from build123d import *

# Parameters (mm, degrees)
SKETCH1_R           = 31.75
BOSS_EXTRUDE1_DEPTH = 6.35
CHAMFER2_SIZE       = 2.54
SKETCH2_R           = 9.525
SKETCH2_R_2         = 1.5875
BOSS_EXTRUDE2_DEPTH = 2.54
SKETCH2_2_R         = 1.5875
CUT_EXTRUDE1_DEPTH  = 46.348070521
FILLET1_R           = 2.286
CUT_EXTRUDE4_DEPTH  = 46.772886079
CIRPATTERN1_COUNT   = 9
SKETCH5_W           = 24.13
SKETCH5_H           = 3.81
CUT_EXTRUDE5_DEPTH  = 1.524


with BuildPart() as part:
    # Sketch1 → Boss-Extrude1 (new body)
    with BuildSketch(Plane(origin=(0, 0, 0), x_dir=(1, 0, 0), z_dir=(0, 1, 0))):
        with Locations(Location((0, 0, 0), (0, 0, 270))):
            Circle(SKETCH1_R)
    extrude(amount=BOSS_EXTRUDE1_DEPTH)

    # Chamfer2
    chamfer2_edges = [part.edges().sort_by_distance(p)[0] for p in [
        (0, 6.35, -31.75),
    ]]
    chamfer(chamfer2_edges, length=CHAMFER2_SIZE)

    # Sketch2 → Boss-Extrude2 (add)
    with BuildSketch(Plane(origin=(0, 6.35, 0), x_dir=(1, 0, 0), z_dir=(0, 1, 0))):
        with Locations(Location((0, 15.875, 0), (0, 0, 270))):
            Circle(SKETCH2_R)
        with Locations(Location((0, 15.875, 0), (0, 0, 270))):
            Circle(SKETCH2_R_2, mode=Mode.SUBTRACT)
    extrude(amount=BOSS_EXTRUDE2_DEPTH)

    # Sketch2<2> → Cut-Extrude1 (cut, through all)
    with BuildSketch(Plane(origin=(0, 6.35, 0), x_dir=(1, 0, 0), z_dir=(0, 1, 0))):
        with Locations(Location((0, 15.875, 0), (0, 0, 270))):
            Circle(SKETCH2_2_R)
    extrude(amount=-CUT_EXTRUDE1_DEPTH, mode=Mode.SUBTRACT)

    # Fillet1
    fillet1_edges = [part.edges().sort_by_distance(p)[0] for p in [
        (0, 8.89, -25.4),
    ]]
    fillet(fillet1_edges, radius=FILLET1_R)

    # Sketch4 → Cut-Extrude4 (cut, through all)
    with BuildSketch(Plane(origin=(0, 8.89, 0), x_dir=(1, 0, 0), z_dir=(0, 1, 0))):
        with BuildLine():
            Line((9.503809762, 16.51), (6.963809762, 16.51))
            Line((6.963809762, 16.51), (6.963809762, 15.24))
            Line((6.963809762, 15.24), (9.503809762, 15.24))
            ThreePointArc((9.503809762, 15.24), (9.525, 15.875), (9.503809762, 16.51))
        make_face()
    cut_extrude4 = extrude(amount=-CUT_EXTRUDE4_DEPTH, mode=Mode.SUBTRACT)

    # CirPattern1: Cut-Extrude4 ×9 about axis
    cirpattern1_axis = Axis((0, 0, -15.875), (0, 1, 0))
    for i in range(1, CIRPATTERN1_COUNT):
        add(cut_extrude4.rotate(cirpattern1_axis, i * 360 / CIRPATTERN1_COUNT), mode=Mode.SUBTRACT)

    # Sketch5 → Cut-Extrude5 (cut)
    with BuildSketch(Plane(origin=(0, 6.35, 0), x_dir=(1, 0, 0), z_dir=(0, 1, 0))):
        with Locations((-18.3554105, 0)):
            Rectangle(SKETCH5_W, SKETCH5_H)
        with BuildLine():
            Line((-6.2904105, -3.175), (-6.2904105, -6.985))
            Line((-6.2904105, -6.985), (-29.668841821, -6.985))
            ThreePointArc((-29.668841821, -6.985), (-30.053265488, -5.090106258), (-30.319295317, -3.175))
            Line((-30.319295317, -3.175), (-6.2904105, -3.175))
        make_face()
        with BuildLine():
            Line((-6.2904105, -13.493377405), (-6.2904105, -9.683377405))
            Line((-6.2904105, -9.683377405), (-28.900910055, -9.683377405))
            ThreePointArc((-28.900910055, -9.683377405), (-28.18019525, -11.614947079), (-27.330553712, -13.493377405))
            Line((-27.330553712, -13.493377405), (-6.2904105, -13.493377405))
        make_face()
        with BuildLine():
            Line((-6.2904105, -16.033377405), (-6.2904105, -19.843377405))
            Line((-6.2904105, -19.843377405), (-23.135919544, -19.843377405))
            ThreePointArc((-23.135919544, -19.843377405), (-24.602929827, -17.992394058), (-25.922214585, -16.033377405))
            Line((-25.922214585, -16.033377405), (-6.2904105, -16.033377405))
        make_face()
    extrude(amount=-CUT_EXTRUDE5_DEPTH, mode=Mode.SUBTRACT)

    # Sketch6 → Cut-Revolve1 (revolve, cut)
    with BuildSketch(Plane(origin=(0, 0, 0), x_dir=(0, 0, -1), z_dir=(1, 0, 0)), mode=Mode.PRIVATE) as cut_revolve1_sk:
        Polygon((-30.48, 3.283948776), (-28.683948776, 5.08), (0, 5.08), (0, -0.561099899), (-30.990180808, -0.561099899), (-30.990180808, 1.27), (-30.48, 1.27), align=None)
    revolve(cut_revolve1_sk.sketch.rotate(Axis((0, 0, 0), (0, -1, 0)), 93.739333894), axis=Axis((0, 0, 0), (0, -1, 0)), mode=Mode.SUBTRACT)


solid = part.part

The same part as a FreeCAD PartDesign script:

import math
import FreeCAD as App
import Part
import Sketcher
from FreeCAD import Vector
Q = App.Units.Quantity


def edges_at(feature, points):
    """Names of the edges that pass closest to the given points."""
    edges = feature.Shape.Edges
    near = lambda p: min(range(len(edges)), key=lambda i: edges[i].distToShape(Part.Vertex(*p))[0])
    return sorted({f"Edge{near(p) + 1}" for p in points})


def add_polygon(sketch, points):
    """Adds a closed chain of lines whose ends are joined by coincident constraints."""
    first, n = sketch.GeometryCount, len(points)
    for a, b in zip(points, points[1:] + points[:1]):
        sketch.addGeometry(Part.LineSegment(App.Vector(*a, 0), App.Vector(*b, 0)), False)
    for i in range(n):
        sketch.addConstraint(Sketcher.Constraint("Coincident", first + i, 2, first + (i + 1) % n, 1))

doc = App.newDocument("Part")
body = doc.addObject("PartDesign::Body", "Body")

sketch1 = body.newObject("Sketcher::SketchObject", "Sketch")
sketch1.AttachmentSupport = (doc.getObject("XZ_Plane"), [""])
sketch1.MapMode = "FlatFace"
sketch1.addGeometry(Part.Circle(Vector(0, 0, 0), Vector(0, 0, 1), 32), False)
sketch1.addConstraint(Sketcher.Constraint("Coincident", 0, 3, -1, 1))
sketch1.addConstraint(Sketcher.Constraint("Diameter", 0, Q("2.5 in")))
pad1 = body.newObject("PartDesign::Pad", "Pad")
pad1.Profile = sketch1
pad1.Length = Q("0.25 in")
pad1.Reversed = True
doc.recompute()

chamfer = body.newObject("PartDesign::Chamfer", "Chamfer")
chamfer.Base = (pad1, edges_at(pad1, [(0, 6.35, -31.75)]))
chamfer.Size = Q("0.1 in")

sketch2 = body.newObject("Sketcher::SketchObject", "Sketch001")
sketch2.AttachmentSupport = (doc.getObject("XZ_Plane"), [""])
sketch2.MapMode = "FlatFace"
sketch2.AttachmentOffset = App.Placement(Vector(0, 0, -0.25 * 25.4), App.Rotation())
sketch2.addGeometry(Part.Circle(Vector(0, -15.9, 0), Vector(0, 0, 1), 9.5), False)
sketch2.addGeometry(Part.Circle(Vector(0, -15.9, 0), Vector(0, 0, 1), 1.6), False)
sketch2.addConstraint(Sketcher.Constraint("Coincident", 1, 3, 0, 3))
sketch2.addConstraint(Sketcher.Constraint("PointOnObject", 0, 3, -2))
sketch2.addConstraint(Sketcher.Constraint("Diameter", 0, Q("0.75 in")))
sketch2.addConstraint(Sketcher.Constraint("Diameter", 1, Q("0.125 in")))
sketch2.addConstraint(Sketcher.Constraint("DistanceY", 0, 3, -1, 1, Q("0.625 in")))
pad2 = body.newObject("PartDesign::Pad", "Pad001")
pad2.Profile = sketch2
pad2.Length = Q("0.1 in")
pad2.Reversed = True

sketch3 = body.newObject("Sketcher::SketchObject", "Sketch002")
sketch3.AttachmentSupport = (doc.getObject("XZ_Plane"), [""])
sketch3.MapMode = "FlatFace"
sketch3.AttachmentOffset = App.Placement(Vector(0, 0, -0.25 * 25.4), App.Rotation())
sketch3.addGeometry(Part.Circle(Vector(0, -15.9, 0), Vector(0, 0, 1), 1.6), False)
sketch3.addConstraint(Sketcher.Constraint("PointOnObject", 0, 3, -2))
sketch3.addConstraint(Sketcher.Constraint("Diameter", 0, Q("0.125 in")))
sketch3.addConstraint(Sketcher.Constraint("DistanceY", 0, 3, -1, 1, Q("0.625 in")))
pocket1 = body.newObject("PartDesign::Pocket", "Pocket")
pocket1.Profile = sketch3
pocket1.Type = "ThroughAll"
pocket1.Reversed = True
doc.recompute()

fillet = body.newObject("PartDesign::Fillet", "Fillet")
fillet.Base = (pocket1, edges_at(pocket1, [(0, 8.89, -25.4)]))
fillet.Radius = Q("0.09 in")

sketch4 = body.newObject("Sketcher::SketchObject", "Sketch003")
sketch4.AttachmentSupport = (doc.getObject("XZ_Plane"), [""])
sketch4.MapMode = "FlatFace"
sketch4.AttachmentOffset = App.Placement(Vector(0, 0, -0.35 * 25.4), App.Rotation())
sketch4.addGeometry(Part.LineSegment(Vector(9.5, -16.5, 0), Vector(7, -16.5, 0)), False)
sketch4.addGeometry(Part.LineSegment(Vector(7, -16.5, 0), Vector(7, -15.2, 0)), False)
sketch4.addGeometry(Part.LineSegment(Vector(7, -15.2, 0), Vector(9.5, -15.2, 0)), False)
sketch4.addGeometry(Part.ArcOfCircle(Part.Circle(Vector(0, -15.9, 0), Vector(0, 0, 1), 9.5), math.radians(-3.82), math.radians(3.82)), False)
sketch4.addConstraint(Sketcher.Constraint("Coincident", 0, 2, 1, 1))
sketch4.addConstraint(Sketcher.Constraint("Coincident", 1, 2, 2, 1))
sketch4.addConstraint(Sketcher.Constraint("Coincident", 2, 2, 3, 2))
sketch4.addConstraint(Sketcher.Constraint("Coincident", 3, 1, 0, 1))
sketch4.addConstraint(Sketcher.Constraint("Horizontal", 0))
sketch4.addConstraint(Sketcher.Constraint("Vertical", 1))
sketch4.addConstraint(Sketcher.Constraint("Horizontal", 2))
sketch4.addConstraint(Sketcher.Constraint("PointOnObject", 3, 3, -2))
sketch4.addConstraint(Sketcher.Constraint("Vertical", 2, 2, 3, 1))
sketch4.addConstraint(Sketcher.Constraint("DistanceX", 0, 2, 0, 1, Q("0.1 in")))
sketch4.addConstraint(Sketcher.Constraint("Radius", 3, Q("0.375 in")))
sketch4.addConstraint(Sketcher.Constraint("DistanceY", 1, 1, 1, 2, Q("0.05 in")))
sketch4.addConstraint(Sketcher.Constraint("DistanceY", 1, 2, -1, 1, Q("0.6 in")))
pocket2 = body.newObject("PartDesign::Pocket", "Pocket001")
pocket2.Profile = sketch4
pocket2.Type = "ThroughAll"
pocket2.Reversed = True
doc.recompute()

datumline = body.newObject("PartDesign::Line", "DatumLine")
datumline.Placement = App.Placement(Vector(0, 0, -15.875), App.Rotation(Vector(0, 0, 1), Vector(0, 1, 0)))
polarpattern = body.newObject("PartDesign::PolarPattern", "PolarPattern")
polarpattern.Originals = [pocket2]
polarpattern.Axis = (datumline, [""])
polarpattern.Angle = 360
polarpattern.Occurrences = 9
body.Tip = polarpattern

sketch5 = body.newObject("Sketcher::SketchObject", "Sketch004")
sketch5.AttachmentSupport = (doc.getObject("XZ_Plane"), [""])
sketch5.MapMode = "FlatFace"
sketch5.AttachmentOffset = App.Placement(Vector(0, 0, -0.25 * 25.4), App.Rotation())
add_polygon(sketch5, [(-30.4, -1.9), (-30.4, 1.9), (-6.3, 1.9), (-6.3, -1.9)])
sketch5.addGeometry(Part.LineSegment(Vector(-6.3, 7, 0), Vector(-6.3, 3.2, 0)), False)
sketch5.addGeometry(Part.LineSegment(Vector(-6.3, 3.2, 0), Vector(-30.3, 3.2, 0)), False)
sketch5.addGeometry(Part.ArcOfCircle(Part.Circle(Vector(0.6, -0.1, 0), Vector(0, 0, 1), 31.1), math.radians(166.75), math.radians(173.87)), False)
sketch5.addGeometry(Part.LineSegment(Vector(-29.7, 7, 0), Vector(-6.3, 7, 0)), False)
sketch5.addGeometry(Part.LineSegment(Vector(-6.3, 13.5, 0), Vector(-6.3, 9.7, 0)), False)
sketch5.addGeometry(Part.LineSegment(Vector(-6.3, 9.7, 0), Vector(-28.9, 9.7, 0)), False)
sketch5.addGeometry(Part.ArcOfCircle(Part.Circle(Vector(0, 0, 0), Vector(0, 0, 1), 30.5), math.radians(153.72), math.radians(161.48)), False)
sketch5.addGeometry(Part.LineSegment(Vector(-27.3, 13.5, 0), Vector(-6.3, 13.5, 0)), False)
sketch5.addGeometry(Part.LineSegment(Vector(-6.3, 19.8, 0), Vector(-6.3, 16, 0)), False)
sketch5.addGeometry(Part.LineSegment(Vector(-6.3, 16, 0), Vector(-25.9, 16, 0)), False)
sketch5.addGeometry(Part.ArcOfCircle(Part.Circle(Vector(0, 0, 0), Vector(0, 0, 1), 30.5), math.radians(139.38), math.radians(148.26)), False)
sketch5.addGeometry(Part.LineSegment(Vector(-23.1, 19.8, 0), Vector(-6.3, 19.8, 0)), False)
sketch5.addConstraint(Sketcher.Constraint("Coincident", 4, 2, 5, 1))
sketch5.addConstraint(Sketcher.Constraint("Coincident", 5, 2, 6, 2))
sketch5.addConstraint(Sketcher.Constraint("Coincident", 6, 1, 7, 1))
sketch5.addConstraint(Sketcher.Constraint("Coincident", 7, 2, 4, 1))
sketch5.addConstraint(Sketcher.Constraint("Coincident", 8, 2, 9, 1))
sketch5.addConstraint(Sketcher.Constraint("Coincident", 9, 2, 10, 2))
sketch5.addConstraint(Sketcher.Constraint("Coincident", 10, 1, 11, 1))
sketch5.addConstraint(Sketcher.Constraint("Coincident", 11, 2, 8, 1))
sketch5.addConstraint(Sketcher.Constraint("Coincident", 12, 2, 13, 1))
sketch5.addConstraint(Sketcher.Constraint("Coincident", 13, 2, 14, 2))
sketch5.addConstraint(Sketcher.Constraint("Coincident", 14, 1, 15, 1))
sketch5.addConstraint(Sketcher.Constraint("Coincident", 15, 2, 12, 1))
sketch5.addConstraint(Sketcher.Constraint("Vertical", 0))
sketch5.addConstraint(Sketcher.Constraint("Horizontal", 1))
sketch5.addConstraint(Sketcher.Constraint("Vertical", 2))
sketch5.addConstraint(Sketcher.Constraint("Horizontal", 3))
sketch5.addConstraint(Sketcher.Constraint("Vertical", 4))
sketch5.addConstraint(Sketcher.Constraint("Horizontal", 5))
sketch5.addConstraint(Sketcher.Constraint("Horizontal", 7))
sketch5.addConstraint(Sketcher.Constraint("Vertical", 8))
sketch5.addConstraint(Sketcher.Constraint("Horizontal", 9))
sketch5.addConstraint(Sketcher.Constraint("Horizontal", 11))
sketch5.addConstraint(Sketcher.Constraint("Vertical", 12))
sketch5.addConstraint(Sketcher.Constraint("Horizontal", 13))
sketch5.addConstraint(Sketcher.Constraint("Horizontal", 15))
sketch5.addConstraint(Sketcher.Constraint("Coincident", 10, 3, -1, 1))
sketch5.addConstraint(Sketcher.Constraint("Coincident", 14, 3, -1, 1))
sketch5.addConstraint(Sketcher.Constraint("Equal", 10, 14))
sketch5.addConstraint(Sketcher.Constraint("Vertical", 2, 2, 4, 2))
sketch5.addConstraint(Sketcher.Constraint("Vertical", 7, 2, 8, 2))
sketch5.addConstraint(Sketcher.Constraint("Vertical", 11, 2, 12, 2))
sketch5.addConstraint(Sketcher.Constraint("Equal", 2, 4))
sketch5.addConstraint(Sketcher.Constraint("Equal", 4, 8))
sketch5.addConstraint(Sketcher.Constraint("Equal", 8, 12))
sketch5.addConstraint(Sketcher.Constraint("Radius", 10, Q("1.2 in")))
sketch5.addConstraint(Sketcher.Constraint("DistanceX", 1, 1, 1, 2, Q("0.95 in")))
sketch5.addConstraint(Sketcher.Constraint("DistanceY", 0, 1, 0, 2, Q("0.15 in")))
sketch5.addConstraint(Sketcher.Constraint("DistanceY", 2, 2, 4, 2, Q("0.2 in")))
sketch5.addConstraint(Sketcher.Constraint("DistanceY", 11, 2, 12, 2, Q("0.1 in")))
sketch5.addConstraint(Sketcher.Constraint("DistanceY", -1, 1, 0, 2, Q("0.075 in")))
sketch5.addConstraint(Sketcher.Constraint("Radius", 6, 31.12566))
sketch5.addConstraint(Sketcher.Constraint("DistanceX", 9, 2, 9, 1, 22.6105))
sketch5.addConstraint(Sketcher.Constraint("DistanceX", 7, 1, 7, 2, 23.378431))
sketch5.addConstraint(Sketcher.Constraint("DistanceX", 15, 1, 15, 2, 16.845509))
sketch5.addConstraint(Sketcher.Constraint("DistanceX", 5, 2, 5, 1, 24.028885))
pocket3 = body.newObject("PartDesign::Pocket", "Pocket002")
pocket3.Profile = sketch5
pocket3.Length = Q("0.06 in")
pocket3.Reversed = True

sketch6 = body.newObject("Sketcher::SketchObject", "Sketch005")
sketch6.AttachmentSupport = (doc.getObject("YZ_Plane"), [""])
sketch6.MapMode = "FlatFace"
add_polygon(sketch6, [(5.1, 28.7), (3.3, 30.5), (1.3, 30.5), (1.3, 31), (-0.6, 31), (-0.6, 0), (5.1, 0)])
sketch6.addConstraint(Sketcher.Constraint("Horizontal", 1))
sketch6.addConstraint(Sketcher.Constraint("Vertical", 2))
sketch6.addConstraint(Sketcher.Constraint("Horizontal", 3))
sketch6.addConstraint(Sketcher.Constraint("Vertical", 4))
sketch6.addConstraint(Sketcher.Constraint("Horizontal", 5))
sketch6.addConstraint(Sketcher.Constraint("Vertical", 6))
sketch6.addConstraint(Sketcher.Constraint("PointOnObject", 4, 2, -1))
sketch6.addConstraint(Sketcher.Constraint("Angle", 0, Q("135 deg")))
sketch6.addConstraint(Sketcher.Constraint("Distance", 0, Q("0.1 in")))
sketch6.addConstraint(Sketcher.Constraint("DistanceY", -1, 1, 0, 2, Q("1.2 in")))
sketch6.addConstraint(Sketcher.Constraint("DistanceX", -1, 1, 5, 2, Q("0.2 in")))
sketch6.addConstraint(Sketcher.Constraint("DistanceX", -1, 1, 1, 2, Q("0.05 in")))
sketch6.addConstraint(Sketcher.Constraint("DistanceX", 3, 2, 3, 1, 1.8311))
sketch6.addConstraint(Sketcher.Constraint("DistanceY", 2, 1, 2, 2, 0.510181))
groove = body.newObject("PartDesign::Groove", "Groove")
groove.Profile = sketch6
groove.ReferenceAxis = (sketch6, ["H_Axis"])
groove.Angle = 360

doc.recompute()
